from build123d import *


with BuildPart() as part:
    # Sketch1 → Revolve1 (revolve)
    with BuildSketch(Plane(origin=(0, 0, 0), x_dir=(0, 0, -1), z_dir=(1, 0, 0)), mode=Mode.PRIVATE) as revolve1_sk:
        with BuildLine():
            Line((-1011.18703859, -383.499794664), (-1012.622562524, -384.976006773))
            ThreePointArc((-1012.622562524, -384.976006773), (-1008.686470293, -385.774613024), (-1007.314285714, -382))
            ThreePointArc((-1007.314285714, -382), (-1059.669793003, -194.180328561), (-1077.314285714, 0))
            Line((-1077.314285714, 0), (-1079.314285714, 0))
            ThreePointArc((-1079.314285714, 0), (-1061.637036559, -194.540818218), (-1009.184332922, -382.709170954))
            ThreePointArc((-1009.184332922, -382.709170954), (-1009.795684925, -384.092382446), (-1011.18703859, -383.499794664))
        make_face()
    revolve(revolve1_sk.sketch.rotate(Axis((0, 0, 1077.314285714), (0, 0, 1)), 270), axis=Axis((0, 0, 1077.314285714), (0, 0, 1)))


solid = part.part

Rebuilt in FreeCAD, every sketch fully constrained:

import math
import FreeCAD as App
import Part
import Sketcher

V = App.Vector
Q = App.Units.Quantity

doc = App.newDocument("Part")
body = doc.addObject("PartDesign::Body", "Body")

# Sketch on YZ plane
sketch1 = body.newObject("Sketcher::SketchObject", "Sketch")
sketch1.AttachmentSupport = (doc.getObject("YZ_Plane"), [""])
sketch1.MapMode = "FlatFace"
sketch1.addGeometry([
    Part.LineSegment(V(-383.5, 1011.2, 0), V(-385, 1012.6, 0)),  # 0
    Part.ArcOfCircle(Part.Circle(V(-383.1, 1010.2, 0), V(0, 0, 1), 3.1), math.radians(128), math.radians(291)),  # 1
    Part.ArcOfCircle(Part.Circle(V(0, 0, 0), V(0, 0, 1), 1077.3), math.radians(90), math.radians(111)),  # 2
    Part.LineSegment(V(0, 1077.3, 0), V(0, 1079.3, 0)),  # 3
    Part.ArcOfCircle(Part.Circle(V(0, 0, 0), V(0, 0, 1), 1079.3), math.radians(90), math.radians(111)),  # 4
    Part.ArcOfCircle(Part.Circle(V(-383.1, 1010.2, 0), V(0, 0, 1), 1.1), math.radians(112), math.radians(291)),  # 5
], False)
sketch1.addConstraint([
    Sketcher.Constraint("Coincident", 0, 2, 1, 1),
    Sketcher.Constraint("Tangent", 1, 2, 2, 2),
    Sketcher.Constraint("Coincident", 2, 1, 3, 1),
    Sketcher.Constraint("Coincident", 3, 2, 4, 1),
    Sketcher.Constraint("Tangent", 4, 2, 5, 2),
    Sketcher.Constraint("Coincident", 5, 1, 0, 1),
    Sketcher.Constraint("Vertical", 3),
    Sketcher.Constraint("Coincident", 2, 3, -1, 1),
    Sketcher.Constraint("Coincident", 4, 3, -1, 1),
    Sketcher.Constraint("Coincident", 5, 3, 1, 3),
    Sketcher.Constraint("PointOnObject", 3, 2, -2),
    Sketcher.Constraint("DistanceY", 3, 1, 3, 2, Q("2 mm")),
    Sketcher.Constraint("DistanceX", 1, 2, -1, 1, Q("382 mm")),
    Sketcher.Constraint("DistanceY", 1, 2, 2, 1, Q("70 mm")),
    Sketcher.Constraint("Radius", 1, Q("3.076657 mm")),
    Sketcher.Constraint("Distance", 0, Q("2.059109 mm")),
    Sketcher.Constraint("DistanceY", -1, 1, 5, 1, Q("1011.187039 mm")),
])
revolution = body.newObject("PartDesign::Revolution", "Revolution")
revolution.Profile = sketch1
revolution.ReferenceAxis = (sketch1, ["V_Axis"])
revolution.Angle = 360

doc.recompute()
